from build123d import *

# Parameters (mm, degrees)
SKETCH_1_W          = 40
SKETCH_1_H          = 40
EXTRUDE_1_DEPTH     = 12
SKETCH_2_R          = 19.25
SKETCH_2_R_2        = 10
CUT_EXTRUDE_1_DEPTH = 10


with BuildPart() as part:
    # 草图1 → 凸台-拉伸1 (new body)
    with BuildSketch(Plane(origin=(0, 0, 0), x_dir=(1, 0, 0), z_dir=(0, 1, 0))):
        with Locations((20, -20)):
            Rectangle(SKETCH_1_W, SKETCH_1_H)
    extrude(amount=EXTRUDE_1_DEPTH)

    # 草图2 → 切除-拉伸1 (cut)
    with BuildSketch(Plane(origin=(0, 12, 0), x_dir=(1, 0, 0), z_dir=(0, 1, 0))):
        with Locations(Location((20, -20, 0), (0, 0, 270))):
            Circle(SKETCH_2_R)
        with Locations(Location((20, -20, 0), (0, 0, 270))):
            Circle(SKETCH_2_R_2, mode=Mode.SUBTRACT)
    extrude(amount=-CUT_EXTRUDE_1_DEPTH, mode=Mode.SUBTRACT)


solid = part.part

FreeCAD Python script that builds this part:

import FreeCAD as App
import Part
import Sketcher

V = App.Vector

doc = App.newDocument("Part")
body = doc.addObject("PartDesign::Body", "Body")

# Sketch on XZ plane
sketch1 = doc.addObject("Sketcher::SketchObject", "Sketch")
body.addObject(sketch1)
sketch1.AttachmentSupport = (doc.XZ_Plane, [""])
sketch1.MapMode = "FlatFace"
sketch1.addGeometry([
    Part.LineSegment(V(0, 0, 0), V(0, 40, 0)),
    Part.LineSegment(V(0, 40, 0), V(40, 40, 0)),
    Part.LineSegment(V(40, 40, 0), V(40, 0, 0)),
    Part.LineSegment(V(40, 0, 0), V(0, 0, 0)),
], False)
sketch1.addConstraint([
    Sketcher.Constraint("Coincident", 0, 2, 1, 1),
    Sketcher.Constraint("Coincident", 1, 2, 2, 1),
    Sketcher.Constraint("Coincident", 2, 2, 3, 1),
    Sketcher.Constraint("Coincident", 3, 2, 0, 1),
    Sketcher.Constraint("Vertical", 0),
    Sketcher.Constraint("Horizontal", 1),
    Sketcher.Constraint("Vertical", 2),
    Sketcher.Constraint("Horizontal", 3),
    Sketcher.Constraint("Coincident", 3, 2, -1, 1),
    Sketcher.Constraint("Equal", 3, 0),
    Sketcher.Constraint("DistanceX", 1, 1, 1, 2, 40.0),
])
pad1 = doc.addObject("PartDesign::Pad", "Pad")
body.addObject(pad1)
pad1.Profile = sketch1
pad1.Length = 12
pad1.Reversed = True

# Sketch on XZ plane
sketch2 = doc.addObject("Sketcher::SketchObject", "Sketch001")
body.addObject(sketch2)
sketch2.AttachmentSupport = (doc.XZ_Plane, [""])
sketch2.MapMode = "FlatFace"
sketch2.AttachmentOffset = App.Placement(V(0, 0, -12), App.Rotation())
sketch2.addGeometry([
    Part.Circle(V(20, 20, 0), V(0, 0, 1), 19.25),
    Part.Circle(V(20, 20, 0), V(0, 0, 1), 10),
], False)
sketch2.addConstraint([
    Sketcher.Constraint("Coincident", 1, 3, 0, 3),
    Sketcher.Constraint("Diameter", 1, 20.0),
    Sketcher.Constraint("Diameter", 0, 38.5),
    Sketcher.Constraint("DistanceX", -1, 1, 0, 3, 20.0),
    Sketcher.Constraint("DistanceY", -1, 1, 0, 3, 20.0),
])
pocket1 = doc.addObject("PartDesign::Pocket", "Pocket")
body.addObject(pocket1)
pocket1.Profile = sketch2
pocket1.Length = 10
pocket1.Reversed = True

doc.recompute()
